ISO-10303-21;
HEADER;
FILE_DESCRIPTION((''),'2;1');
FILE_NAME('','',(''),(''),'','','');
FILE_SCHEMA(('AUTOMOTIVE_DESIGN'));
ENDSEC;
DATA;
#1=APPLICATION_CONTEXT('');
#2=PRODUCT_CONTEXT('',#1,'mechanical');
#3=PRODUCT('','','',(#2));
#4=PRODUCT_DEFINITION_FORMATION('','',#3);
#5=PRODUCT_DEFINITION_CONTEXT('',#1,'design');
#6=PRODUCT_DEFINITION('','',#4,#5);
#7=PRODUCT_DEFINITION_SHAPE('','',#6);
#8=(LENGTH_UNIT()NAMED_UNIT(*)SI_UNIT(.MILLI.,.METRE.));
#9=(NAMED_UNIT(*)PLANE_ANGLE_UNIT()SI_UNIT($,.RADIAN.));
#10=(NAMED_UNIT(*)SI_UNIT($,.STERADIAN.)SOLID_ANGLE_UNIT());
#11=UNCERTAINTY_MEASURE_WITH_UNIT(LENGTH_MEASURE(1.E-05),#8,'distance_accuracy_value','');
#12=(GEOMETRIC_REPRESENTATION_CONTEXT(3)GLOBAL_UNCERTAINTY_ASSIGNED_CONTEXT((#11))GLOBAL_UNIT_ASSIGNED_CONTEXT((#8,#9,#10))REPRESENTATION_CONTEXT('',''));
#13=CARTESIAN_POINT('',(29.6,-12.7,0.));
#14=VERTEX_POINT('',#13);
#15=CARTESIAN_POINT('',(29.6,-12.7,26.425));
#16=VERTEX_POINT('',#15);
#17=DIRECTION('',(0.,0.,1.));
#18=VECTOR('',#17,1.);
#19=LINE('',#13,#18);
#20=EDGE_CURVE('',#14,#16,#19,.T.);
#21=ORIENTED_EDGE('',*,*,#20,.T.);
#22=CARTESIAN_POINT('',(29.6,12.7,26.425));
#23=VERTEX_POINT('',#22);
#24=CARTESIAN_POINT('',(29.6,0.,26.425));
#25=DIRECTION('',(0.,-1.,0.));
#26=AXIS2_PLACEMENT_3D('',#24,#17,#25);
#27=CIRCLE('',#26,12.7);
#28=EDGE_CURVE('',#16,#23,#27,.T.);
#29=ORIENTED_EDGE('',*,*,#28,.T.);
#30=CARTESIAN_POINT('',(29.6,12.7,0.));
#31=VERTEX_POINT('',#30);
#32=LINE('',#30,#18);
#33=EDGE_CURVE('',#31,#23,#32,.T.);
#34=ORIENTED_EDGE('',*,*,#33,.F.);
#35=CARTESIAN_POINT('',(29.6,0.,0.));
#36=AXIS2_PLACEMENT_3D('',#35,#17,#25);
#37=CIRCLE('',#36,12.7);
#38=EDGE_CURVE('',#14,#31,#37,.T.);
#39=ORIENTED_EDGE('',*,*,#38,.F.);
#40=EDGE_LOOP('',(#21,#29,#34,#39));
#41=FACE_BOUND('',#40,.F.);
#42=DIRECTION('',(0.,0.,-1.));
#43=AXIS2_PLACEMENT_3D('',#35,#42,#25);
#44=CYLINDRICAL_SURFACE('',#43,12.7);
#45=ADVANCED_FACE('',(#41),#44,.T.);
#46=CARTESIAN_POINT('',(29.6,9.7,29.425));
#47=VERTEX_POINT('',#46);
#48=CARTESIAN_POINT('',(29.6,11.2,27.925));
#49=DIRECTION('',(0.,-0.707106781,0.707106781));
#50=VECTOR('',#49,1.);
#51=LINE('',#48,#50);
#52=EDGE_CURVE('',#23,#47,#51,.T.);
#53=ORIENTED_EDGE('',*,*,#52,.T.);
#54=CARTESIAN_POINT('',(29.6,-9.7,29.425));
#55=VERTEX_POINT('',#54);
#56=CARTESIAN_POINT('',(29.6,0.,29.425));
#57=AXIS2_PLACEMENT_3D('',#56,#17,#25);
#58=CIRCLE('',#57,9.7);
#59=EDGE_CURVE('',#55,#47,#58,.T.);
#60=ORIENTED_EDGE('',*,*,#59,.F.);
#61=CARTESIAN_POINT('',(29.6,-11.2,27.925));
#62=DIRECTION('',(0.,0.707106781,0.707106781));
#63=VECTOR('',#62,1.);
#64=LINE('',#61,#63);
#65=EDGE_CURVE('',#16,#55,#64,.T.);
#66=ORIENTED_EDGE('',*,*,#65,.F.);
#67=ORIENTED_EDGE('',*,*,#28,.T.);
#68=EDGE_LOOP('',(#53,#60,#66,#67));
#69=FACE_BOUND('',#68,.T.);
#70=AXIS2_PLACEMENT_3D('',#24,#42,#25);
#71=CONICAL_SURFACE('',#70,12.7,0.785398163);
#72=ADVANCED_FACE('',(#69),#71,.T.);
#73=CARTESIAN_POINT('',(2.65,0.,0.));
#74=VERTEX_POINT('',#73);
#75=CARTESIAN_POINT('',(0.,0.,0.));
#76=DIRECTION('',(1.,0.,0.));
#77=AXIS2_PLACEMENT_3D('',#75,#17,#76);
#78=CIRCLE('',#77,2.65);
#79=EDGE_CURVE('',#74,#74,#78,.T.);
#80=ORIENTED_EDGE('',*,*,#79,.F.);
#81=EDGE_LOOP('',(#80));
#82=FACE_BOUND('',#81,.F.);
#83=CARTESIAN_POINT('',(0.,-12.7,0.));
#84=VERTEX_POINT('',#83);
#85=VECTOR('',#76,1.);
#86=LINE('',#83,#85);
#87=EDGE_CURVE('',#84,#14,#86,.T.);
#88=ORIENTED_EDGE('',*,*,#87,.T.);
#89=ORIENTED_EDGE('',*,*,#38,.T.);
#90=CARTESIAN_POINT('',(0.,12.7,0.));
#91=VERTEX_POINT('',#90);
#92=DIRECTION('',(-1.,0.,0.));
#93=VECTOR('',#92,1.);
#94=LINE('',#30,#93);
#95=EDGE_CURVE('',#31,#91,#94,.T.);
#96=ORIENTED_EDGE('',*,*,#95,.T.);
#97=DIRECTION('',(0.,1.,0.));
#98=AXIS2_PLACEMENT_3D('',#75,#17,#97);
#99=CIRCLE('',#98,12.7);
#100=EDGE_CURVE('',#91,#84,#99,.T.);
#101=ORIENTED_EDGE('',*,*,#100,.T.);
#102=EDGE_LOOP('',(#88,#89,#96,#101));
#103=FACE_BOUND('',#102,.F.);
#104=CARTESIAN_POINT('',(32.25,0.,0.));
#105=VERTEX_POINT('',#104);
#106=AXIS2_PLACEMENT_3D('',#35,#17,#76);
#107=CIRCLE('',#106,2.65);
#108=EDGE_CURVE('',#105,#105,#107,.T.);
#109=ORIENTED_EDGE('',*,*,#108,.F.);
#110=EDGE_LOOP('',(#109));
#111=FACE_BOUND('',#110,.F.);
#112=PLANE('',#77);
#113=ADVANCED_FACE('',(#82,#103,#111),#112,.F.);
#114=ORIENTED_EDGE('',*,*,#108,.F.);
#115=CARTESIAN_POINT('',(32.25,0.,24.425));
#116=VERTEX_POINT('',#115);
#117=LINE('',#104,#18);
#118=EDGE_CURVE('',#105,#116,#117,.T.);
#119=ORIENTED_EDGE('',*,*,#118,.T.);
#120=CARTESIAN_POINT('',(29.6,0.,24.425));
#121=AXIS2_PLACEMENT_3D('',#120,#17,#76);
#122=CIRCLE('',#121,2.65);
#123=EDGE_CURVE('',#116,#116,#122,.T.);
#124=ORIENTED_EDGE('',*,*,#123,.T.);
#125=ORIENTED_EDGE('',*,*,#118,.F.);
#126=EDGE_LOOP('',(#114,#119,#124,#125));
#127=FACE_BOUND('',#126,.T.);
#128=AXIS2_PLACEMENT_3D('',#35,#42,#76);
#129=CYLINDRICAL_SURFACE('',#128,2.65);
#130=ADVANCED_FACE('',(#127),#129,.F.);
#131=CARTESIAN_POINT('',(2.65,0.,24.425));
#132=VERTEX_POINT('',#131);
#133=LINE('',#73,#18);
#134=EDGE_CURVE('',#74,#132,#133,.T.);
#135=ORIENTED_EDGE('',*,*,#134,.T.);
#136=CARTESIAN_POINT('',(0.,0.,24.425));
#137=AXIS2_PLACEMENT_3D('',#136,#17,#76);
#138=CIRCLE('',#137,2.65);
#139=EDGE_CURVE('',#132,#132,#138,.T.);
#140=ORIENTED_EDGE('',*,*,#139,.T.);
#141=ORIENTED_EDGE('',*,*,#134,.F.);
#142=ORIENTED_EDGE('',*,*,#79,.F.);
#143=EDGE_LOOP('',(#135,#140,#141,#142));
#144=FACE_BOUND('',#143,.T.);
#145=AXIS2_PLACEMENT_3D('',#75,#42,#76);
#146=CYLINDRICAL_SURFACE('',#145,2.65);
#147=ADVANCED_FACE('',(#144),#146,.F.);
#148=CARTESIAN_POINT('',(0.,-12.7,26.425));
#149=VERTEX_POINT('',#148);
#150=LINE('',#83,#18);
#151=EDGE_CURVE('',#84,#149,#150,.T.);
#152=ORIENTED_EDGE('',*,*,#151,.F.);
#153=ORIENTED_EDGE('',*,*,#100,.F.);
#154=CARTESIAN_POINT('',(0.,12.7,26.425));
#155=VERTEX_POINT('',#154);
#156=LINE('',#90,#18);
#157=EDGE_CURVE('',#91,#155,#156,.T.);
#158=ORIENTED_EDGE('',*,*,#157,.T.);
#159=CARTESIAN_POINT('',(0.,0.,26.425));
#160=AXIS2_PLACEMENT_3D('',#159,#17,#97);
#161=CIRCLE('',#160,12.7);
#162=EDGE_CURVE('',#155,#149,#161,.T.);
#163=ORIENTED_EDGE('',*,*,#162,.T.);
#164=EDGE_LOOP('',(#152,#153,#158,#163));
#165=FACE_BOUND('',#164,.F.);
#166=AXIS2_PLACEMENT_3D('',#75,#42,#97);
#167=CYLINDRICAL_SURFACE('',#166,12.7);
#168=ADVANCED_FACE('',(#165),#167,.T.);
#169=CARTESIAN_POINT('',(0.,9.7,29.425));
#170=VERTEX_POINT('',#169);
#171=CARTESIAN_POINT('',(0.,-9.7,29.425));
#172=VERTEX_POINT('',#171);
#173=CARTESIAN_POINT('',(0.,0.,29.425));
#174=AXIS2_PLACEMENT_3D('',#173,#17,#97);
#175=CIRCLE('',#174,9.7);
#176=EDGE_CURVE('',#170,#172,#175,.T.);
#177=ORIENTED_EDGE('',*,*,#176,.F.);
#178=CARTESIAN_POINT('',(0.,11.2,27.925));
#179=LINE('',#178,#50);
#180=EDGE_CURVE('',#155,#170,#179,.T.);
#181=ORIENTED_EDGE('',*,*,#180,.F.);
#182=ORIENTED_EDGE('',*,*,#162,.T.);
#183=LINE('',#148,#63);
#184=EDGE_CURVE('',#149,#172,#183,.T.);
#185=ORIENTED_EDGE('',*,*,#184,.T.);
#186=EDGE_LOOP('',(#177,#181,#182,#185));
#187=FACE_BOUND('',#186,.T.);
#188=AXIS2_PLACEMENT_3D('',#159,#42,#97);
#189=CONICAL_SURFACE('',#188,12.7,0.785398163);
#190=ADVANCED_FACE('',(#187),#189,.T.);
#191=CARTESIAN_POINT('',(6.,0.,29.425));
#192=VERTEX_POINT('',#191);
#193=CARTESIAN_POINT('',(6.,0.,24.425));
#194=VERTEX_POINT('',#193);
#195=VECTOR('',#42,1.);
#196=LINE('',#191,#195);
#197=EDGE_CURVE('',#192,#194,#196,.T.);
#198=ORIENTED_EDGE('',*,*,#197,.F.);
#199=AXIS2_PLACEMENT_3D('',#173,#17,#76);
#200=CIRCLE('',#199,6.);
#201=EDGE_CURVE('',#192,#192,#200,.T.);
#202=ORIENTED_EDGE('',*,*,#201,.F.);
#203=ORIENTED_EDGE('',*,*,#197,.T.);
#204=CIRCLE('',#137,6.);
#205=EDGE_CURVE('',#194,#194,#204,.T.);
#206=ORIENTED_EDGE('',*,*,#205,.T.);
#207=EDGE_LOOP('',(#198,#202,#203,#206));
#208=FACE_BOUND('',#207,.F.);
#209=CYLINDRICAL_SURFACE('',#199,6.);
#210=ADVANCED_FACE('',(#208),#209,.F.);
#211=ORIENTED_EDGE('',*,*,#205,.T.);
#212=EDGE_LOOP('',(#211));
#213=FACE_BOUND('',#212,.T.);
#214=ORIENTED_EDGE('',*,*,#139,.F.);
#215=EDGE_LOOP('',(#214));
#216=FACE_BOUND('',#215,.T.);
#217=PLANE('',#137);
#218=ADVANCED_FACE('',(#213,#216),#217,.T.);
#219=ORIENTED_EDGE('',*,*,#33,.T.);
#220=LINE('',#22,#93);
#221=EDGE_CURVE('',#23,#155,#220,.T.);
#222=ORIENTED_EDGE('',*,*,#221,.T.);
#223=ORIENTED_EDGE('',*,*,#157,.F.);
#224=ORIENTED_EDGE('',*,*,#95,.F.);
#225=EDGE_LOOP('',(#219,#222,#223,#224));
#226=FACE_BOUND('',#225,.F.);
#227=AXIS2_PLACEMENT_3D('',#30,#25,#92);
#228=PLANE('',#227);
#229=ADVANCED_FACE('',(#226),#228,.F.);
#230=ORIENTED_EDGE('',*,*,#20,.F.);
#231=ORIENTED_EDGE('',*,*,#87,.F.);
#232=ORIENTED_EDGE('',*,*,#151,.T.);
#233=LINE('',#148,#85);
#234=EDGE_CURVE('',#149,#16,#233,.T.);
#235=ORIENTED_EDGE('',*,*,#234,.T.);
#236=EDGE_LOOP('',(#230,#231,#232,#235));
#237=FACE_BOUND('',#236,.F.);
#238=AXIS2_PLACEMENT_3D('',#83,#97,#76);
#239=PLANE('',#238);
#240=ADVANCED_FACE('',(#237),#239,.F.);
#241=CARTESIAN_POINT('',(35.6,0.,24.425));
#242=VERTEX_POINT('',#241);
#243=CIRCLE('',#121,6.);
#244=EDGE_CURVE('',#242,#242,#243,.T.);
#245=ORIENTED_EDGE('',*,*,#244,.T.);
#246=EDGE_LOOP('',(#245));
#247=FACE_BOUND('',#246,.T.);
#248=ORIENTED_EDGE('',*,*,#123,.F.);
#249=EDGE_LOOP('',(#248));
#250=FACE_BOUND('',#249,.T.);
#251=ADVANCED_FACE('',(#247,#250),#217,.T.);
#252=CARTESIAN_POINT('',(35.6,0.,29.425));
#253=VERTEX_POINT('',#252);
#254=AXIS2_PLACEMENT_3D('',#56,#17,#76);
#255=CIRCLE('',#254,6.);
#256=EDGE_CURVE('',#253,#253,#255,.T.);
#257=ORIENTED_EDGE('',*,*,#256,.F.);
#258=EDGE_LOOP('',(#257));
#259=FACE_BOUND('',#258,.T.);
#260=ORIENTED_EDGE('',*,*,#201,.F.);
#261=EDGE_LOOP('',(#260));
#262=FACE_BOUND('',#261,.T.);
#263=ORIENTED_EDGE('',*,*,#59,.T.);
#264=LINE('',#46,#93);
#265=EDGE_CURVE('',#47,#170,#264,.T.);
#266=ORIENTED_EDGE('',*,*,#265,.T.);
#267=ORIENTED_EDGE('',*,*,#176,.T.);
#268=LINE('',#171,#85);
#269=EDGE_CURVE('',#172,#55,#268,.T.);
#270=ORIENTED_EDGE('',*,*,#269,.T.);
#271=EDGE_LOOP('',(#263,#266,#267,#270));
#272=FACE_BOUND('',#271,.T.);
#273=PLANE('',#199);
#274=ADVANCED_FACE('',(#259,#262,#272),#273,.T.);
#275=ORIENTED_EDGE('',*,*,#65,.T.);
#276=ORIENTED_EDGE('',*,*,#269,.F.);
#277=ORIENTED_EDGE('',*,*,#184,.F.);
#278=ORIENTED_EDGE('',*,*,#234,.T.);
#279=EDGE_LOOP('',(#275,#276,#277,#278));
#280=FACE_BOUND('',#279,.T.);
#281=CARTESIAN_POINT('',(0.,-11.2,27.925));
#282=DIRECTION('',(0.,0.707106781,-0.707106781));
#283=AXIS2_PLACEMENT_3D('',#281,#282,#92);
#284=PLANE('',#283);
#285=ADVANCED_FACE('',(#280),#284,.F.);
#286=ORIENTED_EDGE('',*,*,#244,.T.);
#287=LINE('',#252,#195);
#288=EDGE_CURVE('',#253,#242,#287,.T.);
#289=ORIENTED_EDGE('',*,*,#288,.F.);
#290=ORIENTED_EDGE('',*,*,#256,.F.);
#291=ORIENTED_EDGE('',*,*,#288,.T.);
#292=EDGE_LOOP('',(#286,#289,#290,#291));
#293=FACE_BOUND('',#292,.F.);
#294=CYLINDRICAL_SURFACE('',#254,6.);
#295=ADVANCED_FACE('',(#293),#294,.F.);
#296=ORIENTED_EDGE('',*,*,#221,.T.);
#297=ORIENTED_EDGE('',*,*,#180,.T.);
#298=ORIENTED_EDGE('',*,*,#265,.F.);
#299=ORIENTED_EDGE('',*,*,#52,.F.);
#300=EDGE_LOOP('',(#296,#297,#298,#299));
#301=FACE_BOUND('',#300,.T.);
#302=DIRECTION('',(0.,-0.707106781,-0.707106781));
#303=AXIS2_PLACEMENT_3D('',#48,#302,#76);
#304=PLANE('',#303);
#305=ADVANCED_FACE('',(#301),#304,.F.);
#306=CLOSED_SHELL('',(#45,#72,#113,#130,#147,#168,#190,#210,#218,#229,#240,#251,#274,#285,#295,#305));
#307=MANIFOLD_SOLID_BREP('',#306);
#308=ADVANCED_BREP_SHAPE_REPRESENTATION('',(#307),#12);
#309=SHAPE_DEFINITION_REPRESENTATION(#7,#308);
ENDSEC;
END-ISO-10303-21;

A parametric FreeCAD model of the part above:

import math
import FreeCAD as App
import Part
import Sketcher
from FreeCAD import Vector


def edges_at(feature, points):
    """Names of the edges that pass closest to the given points."""
    edges = feature.Shape.Edges
    near = lambda p: min(range(len(edges)), key=lambda i: edges[i].distToShape(Part.Vertex(*p))[0])
    return sorted({f"Edge{near(p) + 1}" for p in points})

doc = App.newDocument("Part")
params = doc.addObject("Spreadsheet::Sheet", "Params")
for row, (alias, value) in enumerate([
    ("sketch1_diameter", "5.3 mm"),
    ("sketch1_radius", "12.7 mm"),
    ("sketch1_width", "29.6 mm"),
    ("pad1_length", "29.425 mm"),
    ("sketch2_diameter", "12 mm"),
    ("sketch2_diameter2", "5.3 mm"),
    ("pocket1_length", "5 mm"),
    ("chamfer_size", "3 mm"),
], start=1):
    params.set(f"A{row}", alias)
    params.set(f"B{row}", "=" + value)
    params.setAlias(f"B{row}", alias)

body = doc.addObject("PartDesign::Body", "Body")

sketch1 = doc.addObject("Sketcher::SketchObject", "Sketch")
body.addObject(sketch1)
sketch1.AttachmentSupport = (doc.XY_Plane, [""])
sketch1.MapMode = "FlatFace"
sketch1.addGeometry(Part.ArcOfCircle(Part.Circle(Vector(0, 0, 0), Vector(0, 0, 1), 12.7), math.radians(90), math.radians(270)), False)
sketch1.addGeometry(Part.LineSegment(Vector(0, -12.7, 0), Vector(29.6, -12.7, 0)), False)
sketch1.addGeometry(Part.ArcOfCircle(Part.Circle(Vector(29.6, 0, 0), Vector(0, 0, 1), 12.7), math.radians(-90), math.radians(90)), False)
sketch1.addGeometry(Part.LineSegment(Vector(29.6, 12.7, 0), Vector(0, 12.7, 0)), False)
sketch1.addGeometry(Part.Circle(Vector(0, 0, 0), Vector(0, 0, 1), 2.6), False)
sketch1.addGeometry(Part.Circle(Vector(29.6, 0, 0), Vector(0, 0, 1), 2.6), False)
sketch1.addConstraint(Sketcher.Constraint("Tangent", 0, 2, 1, 1))
sketch1.addConstraint(Sketcher.Constraint("Tangent", 1, 2, 2, 1))
sketch1.addConstraint(Sketcher.Constraint("Tangent", 2, 2, 3, 1))
sketch1.addConstraint(Sketcher.Constraint("Tangent", 3, 2, 0, 1))
sketch1.addConstraint(Sketcher.Constraint("Horizontal", 1))
sketch1.addConstraint(Sketcher.Constraint("Horizontal", 3))
sketch1.addConstraint(Sketcher.Constraint("Coincident", 0, 3, -1, 1))
sketch1.addConstraint(Sketcher.Constraint("Coincident", 4, 3, -1, 1))
sketch1.addConstraint(Sketcher.Constraint("Coincident", 5, 3, 2, 3))
sketch1.addConstraint(Sketcher.Constraint("Equal", 4, 5))
sketch1.addConstraint(Sketcher.Constraint("Diameter", 4, 5.3))
sketch1.addConstraint(Sketcher.Constraint("Radius", 0, 12.7))
sketch1.addConstraint(Sketcher.Constraint("DistanceX", 1, 1, 1, 2, 29.6))
sketch1.setExpression("Constraints[10]", "Params.sketch1_diameter")
sketch1.setExpression("Constraints[11]", "Params.sketch1_radius")
sketch1.setExpression("Constraints[12]", "Params.sketch1_width")
pad1 = doc.addObject("PartDesign::Pad", "Pad")
body.addObject(pad1)
pad1.Profile = sketch1
pad1.setExpression("Length", "Params.pad1_length")

sketch2 = doc.addObject("Sketcher::SketchObject", "Sketch001")
body.addObject(sketch2)
sketch2.AttachmentSupport = (doc.XY_Plane, [""])
sketch2.MapMode = "FlatFace"
sketch2.AttachmentOffset = App.Placement(Vector(0, 0, 29.425), App.Rotation())
sketch2.addGeometry(Part.Circle(Vector(0, 0, 0), Vector(0, 0, 1), 6), False)
sketch2.addGeometry(Part.Circle(Vector(0, 0, 0), Vector(0, 0, 1), 2.6), False)
sketch2.addGeometry(Part.Circle(Vector(29.6, 0, 0), Vector(0, 0, 1), 6), False)
sketch2.addGeometry(Part.Circle(Vector(29.6, 0, 0), Vector(0, 0, 1), 2.6), False)
sketch2.addConstraint(Sketcher.Constraint("Coincident", 0, 3, -1, 1))
sketch2.addConstraint(Sketcher.Constraint("Coincident", 1, 3, -1, 1))
sketch2.addConstraint(Sketcher.Constraint("Coincident", 3, 3, 2, 3))
sketch2.addConstraint(Sketcher.Constraint("Equal", 0, 2))
sketch2.addConstraint(Sketcher.Constraint("Equal", 1, 3))
sketch2.addConstraint(Sketcher.Constraint("PointOnObject", 2, 3, -1))
sketch2.addConstraint(Sketcher.Constraint("Diameter", 0, 12.0))
sketch2.addConstraint(Sketcher.Constraint("Diameter", 1, 5.3))
sketch2.addConstraint(Sketcher.Constraint("DistanceX", -1, 1, 2, 3, 29.6))
sketch2.setExpression("Constraints[6]", "Params.sketch2_diameter")
sketch2.setExpression("Constraints[7]", "Params.sketch2_diameter2")
pocket1 = doc.addObject("PartDesign::Pocket", "Pocket")
body.addObject(pocket1)
pocket1.Profile = sketch2
pocket1.setExpression("Length", "Params.pocket1_length")
doc.recompute()

chamfer = doc.addObject("PartDesign::Chamfer", "Chamfer")
body.addObject(chamfer)
chamfer.Base = (pocket1, edges_at(pocket1, [
    (14.8, 12.7, 29.425),
    (-12.7, 0, 29.425),
    (14.8, -12.7, 29.425),
    (42.3, 0, 29.425),
]))
chamfer.setExpression("Size", "Params.chamfer_size")

doc.recompute()
